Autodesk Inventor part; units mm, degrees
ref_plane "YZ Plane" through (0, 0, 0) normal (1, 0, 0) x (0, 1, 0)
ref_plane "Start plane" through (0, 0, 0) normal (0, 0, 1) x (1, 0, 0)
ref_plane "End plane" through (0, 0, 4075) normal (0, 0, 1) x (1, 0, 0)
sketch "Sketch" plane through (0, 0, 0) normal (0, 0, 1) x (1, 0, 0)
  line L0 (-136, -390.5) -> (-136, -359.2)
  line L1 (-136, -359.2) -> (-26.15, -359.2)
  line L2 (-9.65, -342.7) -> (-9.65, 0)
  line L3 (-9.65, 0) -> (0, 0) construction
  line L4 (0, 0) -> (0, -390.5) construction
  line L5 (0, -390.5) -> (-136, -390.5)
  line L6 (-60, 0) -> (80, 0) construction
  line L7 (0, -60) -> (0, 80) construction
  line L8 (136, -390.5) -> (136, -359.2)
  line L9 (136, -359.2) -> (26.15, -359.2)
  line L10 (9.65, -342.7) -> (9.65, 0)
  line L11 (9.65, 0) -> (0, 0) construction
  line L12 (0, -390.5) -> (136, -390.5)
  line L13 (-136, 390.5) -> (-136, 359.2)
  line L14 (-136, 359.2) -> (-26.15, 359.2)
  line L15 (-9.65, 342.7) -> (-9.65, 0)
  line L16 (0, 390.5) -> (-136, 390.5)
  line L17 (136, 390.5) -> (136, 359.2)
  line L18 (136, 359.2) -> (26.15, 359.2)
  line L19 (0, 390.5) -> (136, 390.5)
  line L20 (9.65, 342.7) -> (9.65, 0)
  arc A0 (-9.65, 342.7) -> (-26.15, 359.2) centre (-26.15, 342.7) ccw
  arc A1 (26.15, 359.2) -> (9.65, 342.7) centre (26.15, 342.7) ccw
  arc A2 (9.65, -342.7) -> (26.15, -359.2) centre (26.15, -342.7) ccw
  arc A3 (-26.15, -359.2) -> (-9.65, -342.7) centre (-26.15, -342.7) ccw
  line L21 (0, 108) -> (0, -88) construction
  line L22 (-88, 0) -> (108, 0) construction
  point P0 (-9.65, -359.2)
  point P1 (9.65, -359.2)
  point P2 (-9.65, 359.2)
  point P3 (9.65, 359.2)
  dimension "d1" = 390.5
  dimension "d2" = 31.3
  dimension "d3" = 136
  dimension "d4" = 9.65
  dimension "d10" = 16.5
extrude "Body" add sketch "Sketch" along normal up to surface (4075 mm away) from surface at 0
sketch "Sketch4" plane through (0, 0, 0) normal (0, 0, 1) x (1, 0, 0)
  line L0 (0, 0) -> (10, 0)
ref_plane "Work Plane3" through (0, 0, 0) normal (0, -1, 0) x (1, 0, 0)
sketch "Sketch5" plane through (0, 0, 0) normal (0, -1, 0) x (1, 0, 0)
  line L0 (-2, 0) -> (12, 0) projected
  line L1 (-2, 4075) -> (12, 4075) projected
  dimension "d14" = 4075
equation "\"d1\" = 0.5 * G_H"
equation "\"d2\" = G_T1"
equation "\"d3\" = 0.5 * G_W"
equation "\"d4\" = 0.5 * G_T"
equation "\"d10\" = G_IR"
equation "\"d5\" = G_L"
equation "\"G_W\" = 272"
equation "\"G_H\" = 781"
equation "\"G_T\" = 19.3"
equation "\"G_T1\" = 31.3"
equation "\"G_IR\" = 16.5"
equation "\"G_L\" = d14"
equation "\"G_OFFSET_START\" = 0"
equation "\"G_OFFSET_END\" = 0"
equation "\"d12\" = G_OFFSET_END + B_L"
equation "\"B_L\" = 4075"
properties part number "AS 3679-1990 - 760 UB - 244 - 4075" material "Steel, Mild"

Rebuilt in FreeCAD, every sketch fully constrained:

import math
import FreeCAD as App
import Part
import Sketcher

V = App.Vector
Q = App.Units.Quantity

doc = App.newDocument("Part")
body = doc.addObject("PartDesign::Body", "Body")

sketch1 = body.newObject("Sketcher::SketchObject", "Sketch")
sketch1.AttachmentSupport = (doc.getObject("XY_Plane"), [""])
sketch1.MapMode = "FlatFace"
sketch1.addGeometry([
    Part.LineSegment(V(-136, -359, 0), V(-136, -390, 0)),
    Part.LineSegment(V(-136, -390, 0), V(136, -390, 0)),
    Part.LineSegment(V(136, -390, 0), V(136, -359, 0)),
    Part.LineSegment(V(136, -359, 0), V(26, -359, 0)),
    Part.ArcOfCircle(Part.Circle(V(26, -343, 0), V(0, 0, 1), 16), math.radians(180), math.radians(270)),
    Part.LineSegment(V(10, -343, 0), V(10, 343, 0)),
    Part.ArcOfCircle(Part.Circle(V(26, 343, 0), V(0, 0, 1), 16), math.radians(90), math.radians(180)),
    Part.LineSegment(V(26, 359, 0), V(136, 359, 0)),
    Part.LineSegment(V(136, 359, 0), V(136, 390, 0)),
    Part.LineSegment(V(136, 390, 0), V(-136, 390, 0)),
    Part.LineSegment(V(-136, 390, 0), V(-136, 359, 0)),
    Part.LineSegment(V(-136, 359, 0), V(-26, 359, 0)),
    Part.ArcOfCircle(Part.Circle(V(-26, 343, 0), V(0, 0, 1), 16), math.radians(0), math.radians(90)),
    Part.LineSegment(V(-10, 343, 0), V(-10, -343, 0)),
    Part.ArcOfCircle(Part.Circle(V(-26, -343, 0), V(0, 0, 1), 16), math.radians(-90), math.radians(0)),
    Part.LineSegment(V(-26, -359, 0), V(-136, -359, 0)),
], False)
sketch1.addConstraint([
    Sketcher.Constraint("Coincident", 0, 2, 1, 1),
    Sketcher.Constraint("Coincident", 1, 2, 2, 1),
    Sketcher.Constraint("Coincident", 2, 2, 3, 1),
    Sketcher.Constraint("Tangent", 3, 2, 4, 2),
    Sketcher.Constraint("Tangent", 4, 1, 5, 1),
    Sketcher.Constraint("Tangent", 5, 2, 6, 2),
    Sketcher.Constraint("Tangent", 6, 1, 7, 1),
    Sketcher.Constraint("Coincident", 7, 2, 8, 1),
    Sketcher.Constraint("Coincident", 8, 2, 9, 1),
    Sketcher.Constraint("Coincident", 9, 2, 10, 1),
    Sketcher.Constraint("Coincident", 10, 2, 11, 1),
    Sketcher.Constraint("Tangent", 11, 2, 12, 2),
    Sketcher.Constraint("Tangent", 12, 1, 13, 1),
    Sketcher.Constraint("Tangent", 13, 2, 14, 2),
    Sketcher.Constraint("Tangent", 14, 1, 15, 1),
    Sketcher.Constraint("Coincident", 15, 2, 0, 1),
    Sketcher.Constraint("Vertical", 0),
    Sketcher.Constraint("Horizontal", 1),
    Sketcher.Constraint("Vertical", 2),
    Sketcher.Constraint("Horizontal", 3),
    Sketcher.Constraint("Vertical", 5),
    Sketcher.Constraint("Horizontal", 7),
    Sketcher.Constraint("Vertical", 8),
    Sketcher.Constraint("Horizontal", 9),
    Sketcher.Constraint("Vertical", 10),
    Sketcher.Constraint("Horizontal", 11),
    Sketcher.Constraint("Vertical", 13),
    Sketcher.Constraint("Horizontal", 15),
    Sketcher.Constraint("Equal", 4, 6),
    Sketcher.Constraint("Equal", 6, 12),
    Sketcher.Constraint("Equal", 12, 14),
    Sketcher.Constraint("Symmetric", 4, 3, 12, 3, -1, 1),
    Sketcher.Constraint("Symmetric", 0, 2, 8, 2, -1, 1),
    Sketcher.Constraint("Symmetric", 7, 2, 10, 2, -2),
    Sketcher.Constraint("Symmetric", 2, 2, 15, 2, -2),
    Sketcher.Constraint("Radius", 4, Q("16.5 mm")),
    Sketcher.Constraint("DistanceY", 0, 2, 0, 1, Q("31.3 mm")),
    Sketcher.Constraint("DistanceX", 0, 2, -1, 1, Q("136 mm")),
    Sketcher.Constraint("DistanceY", 0, 2, -1, 1, Q("390.5 mm")),
    Sketcher.Constraint("DistanceX", -1, 1, 4, 1, Q("9.65 mm")),
])
pad1 = body.newObject("PartDesign::Pad", "Pad")
pad1.Profile = sketch1
pad1.Length = 4075

doc.recompute()
